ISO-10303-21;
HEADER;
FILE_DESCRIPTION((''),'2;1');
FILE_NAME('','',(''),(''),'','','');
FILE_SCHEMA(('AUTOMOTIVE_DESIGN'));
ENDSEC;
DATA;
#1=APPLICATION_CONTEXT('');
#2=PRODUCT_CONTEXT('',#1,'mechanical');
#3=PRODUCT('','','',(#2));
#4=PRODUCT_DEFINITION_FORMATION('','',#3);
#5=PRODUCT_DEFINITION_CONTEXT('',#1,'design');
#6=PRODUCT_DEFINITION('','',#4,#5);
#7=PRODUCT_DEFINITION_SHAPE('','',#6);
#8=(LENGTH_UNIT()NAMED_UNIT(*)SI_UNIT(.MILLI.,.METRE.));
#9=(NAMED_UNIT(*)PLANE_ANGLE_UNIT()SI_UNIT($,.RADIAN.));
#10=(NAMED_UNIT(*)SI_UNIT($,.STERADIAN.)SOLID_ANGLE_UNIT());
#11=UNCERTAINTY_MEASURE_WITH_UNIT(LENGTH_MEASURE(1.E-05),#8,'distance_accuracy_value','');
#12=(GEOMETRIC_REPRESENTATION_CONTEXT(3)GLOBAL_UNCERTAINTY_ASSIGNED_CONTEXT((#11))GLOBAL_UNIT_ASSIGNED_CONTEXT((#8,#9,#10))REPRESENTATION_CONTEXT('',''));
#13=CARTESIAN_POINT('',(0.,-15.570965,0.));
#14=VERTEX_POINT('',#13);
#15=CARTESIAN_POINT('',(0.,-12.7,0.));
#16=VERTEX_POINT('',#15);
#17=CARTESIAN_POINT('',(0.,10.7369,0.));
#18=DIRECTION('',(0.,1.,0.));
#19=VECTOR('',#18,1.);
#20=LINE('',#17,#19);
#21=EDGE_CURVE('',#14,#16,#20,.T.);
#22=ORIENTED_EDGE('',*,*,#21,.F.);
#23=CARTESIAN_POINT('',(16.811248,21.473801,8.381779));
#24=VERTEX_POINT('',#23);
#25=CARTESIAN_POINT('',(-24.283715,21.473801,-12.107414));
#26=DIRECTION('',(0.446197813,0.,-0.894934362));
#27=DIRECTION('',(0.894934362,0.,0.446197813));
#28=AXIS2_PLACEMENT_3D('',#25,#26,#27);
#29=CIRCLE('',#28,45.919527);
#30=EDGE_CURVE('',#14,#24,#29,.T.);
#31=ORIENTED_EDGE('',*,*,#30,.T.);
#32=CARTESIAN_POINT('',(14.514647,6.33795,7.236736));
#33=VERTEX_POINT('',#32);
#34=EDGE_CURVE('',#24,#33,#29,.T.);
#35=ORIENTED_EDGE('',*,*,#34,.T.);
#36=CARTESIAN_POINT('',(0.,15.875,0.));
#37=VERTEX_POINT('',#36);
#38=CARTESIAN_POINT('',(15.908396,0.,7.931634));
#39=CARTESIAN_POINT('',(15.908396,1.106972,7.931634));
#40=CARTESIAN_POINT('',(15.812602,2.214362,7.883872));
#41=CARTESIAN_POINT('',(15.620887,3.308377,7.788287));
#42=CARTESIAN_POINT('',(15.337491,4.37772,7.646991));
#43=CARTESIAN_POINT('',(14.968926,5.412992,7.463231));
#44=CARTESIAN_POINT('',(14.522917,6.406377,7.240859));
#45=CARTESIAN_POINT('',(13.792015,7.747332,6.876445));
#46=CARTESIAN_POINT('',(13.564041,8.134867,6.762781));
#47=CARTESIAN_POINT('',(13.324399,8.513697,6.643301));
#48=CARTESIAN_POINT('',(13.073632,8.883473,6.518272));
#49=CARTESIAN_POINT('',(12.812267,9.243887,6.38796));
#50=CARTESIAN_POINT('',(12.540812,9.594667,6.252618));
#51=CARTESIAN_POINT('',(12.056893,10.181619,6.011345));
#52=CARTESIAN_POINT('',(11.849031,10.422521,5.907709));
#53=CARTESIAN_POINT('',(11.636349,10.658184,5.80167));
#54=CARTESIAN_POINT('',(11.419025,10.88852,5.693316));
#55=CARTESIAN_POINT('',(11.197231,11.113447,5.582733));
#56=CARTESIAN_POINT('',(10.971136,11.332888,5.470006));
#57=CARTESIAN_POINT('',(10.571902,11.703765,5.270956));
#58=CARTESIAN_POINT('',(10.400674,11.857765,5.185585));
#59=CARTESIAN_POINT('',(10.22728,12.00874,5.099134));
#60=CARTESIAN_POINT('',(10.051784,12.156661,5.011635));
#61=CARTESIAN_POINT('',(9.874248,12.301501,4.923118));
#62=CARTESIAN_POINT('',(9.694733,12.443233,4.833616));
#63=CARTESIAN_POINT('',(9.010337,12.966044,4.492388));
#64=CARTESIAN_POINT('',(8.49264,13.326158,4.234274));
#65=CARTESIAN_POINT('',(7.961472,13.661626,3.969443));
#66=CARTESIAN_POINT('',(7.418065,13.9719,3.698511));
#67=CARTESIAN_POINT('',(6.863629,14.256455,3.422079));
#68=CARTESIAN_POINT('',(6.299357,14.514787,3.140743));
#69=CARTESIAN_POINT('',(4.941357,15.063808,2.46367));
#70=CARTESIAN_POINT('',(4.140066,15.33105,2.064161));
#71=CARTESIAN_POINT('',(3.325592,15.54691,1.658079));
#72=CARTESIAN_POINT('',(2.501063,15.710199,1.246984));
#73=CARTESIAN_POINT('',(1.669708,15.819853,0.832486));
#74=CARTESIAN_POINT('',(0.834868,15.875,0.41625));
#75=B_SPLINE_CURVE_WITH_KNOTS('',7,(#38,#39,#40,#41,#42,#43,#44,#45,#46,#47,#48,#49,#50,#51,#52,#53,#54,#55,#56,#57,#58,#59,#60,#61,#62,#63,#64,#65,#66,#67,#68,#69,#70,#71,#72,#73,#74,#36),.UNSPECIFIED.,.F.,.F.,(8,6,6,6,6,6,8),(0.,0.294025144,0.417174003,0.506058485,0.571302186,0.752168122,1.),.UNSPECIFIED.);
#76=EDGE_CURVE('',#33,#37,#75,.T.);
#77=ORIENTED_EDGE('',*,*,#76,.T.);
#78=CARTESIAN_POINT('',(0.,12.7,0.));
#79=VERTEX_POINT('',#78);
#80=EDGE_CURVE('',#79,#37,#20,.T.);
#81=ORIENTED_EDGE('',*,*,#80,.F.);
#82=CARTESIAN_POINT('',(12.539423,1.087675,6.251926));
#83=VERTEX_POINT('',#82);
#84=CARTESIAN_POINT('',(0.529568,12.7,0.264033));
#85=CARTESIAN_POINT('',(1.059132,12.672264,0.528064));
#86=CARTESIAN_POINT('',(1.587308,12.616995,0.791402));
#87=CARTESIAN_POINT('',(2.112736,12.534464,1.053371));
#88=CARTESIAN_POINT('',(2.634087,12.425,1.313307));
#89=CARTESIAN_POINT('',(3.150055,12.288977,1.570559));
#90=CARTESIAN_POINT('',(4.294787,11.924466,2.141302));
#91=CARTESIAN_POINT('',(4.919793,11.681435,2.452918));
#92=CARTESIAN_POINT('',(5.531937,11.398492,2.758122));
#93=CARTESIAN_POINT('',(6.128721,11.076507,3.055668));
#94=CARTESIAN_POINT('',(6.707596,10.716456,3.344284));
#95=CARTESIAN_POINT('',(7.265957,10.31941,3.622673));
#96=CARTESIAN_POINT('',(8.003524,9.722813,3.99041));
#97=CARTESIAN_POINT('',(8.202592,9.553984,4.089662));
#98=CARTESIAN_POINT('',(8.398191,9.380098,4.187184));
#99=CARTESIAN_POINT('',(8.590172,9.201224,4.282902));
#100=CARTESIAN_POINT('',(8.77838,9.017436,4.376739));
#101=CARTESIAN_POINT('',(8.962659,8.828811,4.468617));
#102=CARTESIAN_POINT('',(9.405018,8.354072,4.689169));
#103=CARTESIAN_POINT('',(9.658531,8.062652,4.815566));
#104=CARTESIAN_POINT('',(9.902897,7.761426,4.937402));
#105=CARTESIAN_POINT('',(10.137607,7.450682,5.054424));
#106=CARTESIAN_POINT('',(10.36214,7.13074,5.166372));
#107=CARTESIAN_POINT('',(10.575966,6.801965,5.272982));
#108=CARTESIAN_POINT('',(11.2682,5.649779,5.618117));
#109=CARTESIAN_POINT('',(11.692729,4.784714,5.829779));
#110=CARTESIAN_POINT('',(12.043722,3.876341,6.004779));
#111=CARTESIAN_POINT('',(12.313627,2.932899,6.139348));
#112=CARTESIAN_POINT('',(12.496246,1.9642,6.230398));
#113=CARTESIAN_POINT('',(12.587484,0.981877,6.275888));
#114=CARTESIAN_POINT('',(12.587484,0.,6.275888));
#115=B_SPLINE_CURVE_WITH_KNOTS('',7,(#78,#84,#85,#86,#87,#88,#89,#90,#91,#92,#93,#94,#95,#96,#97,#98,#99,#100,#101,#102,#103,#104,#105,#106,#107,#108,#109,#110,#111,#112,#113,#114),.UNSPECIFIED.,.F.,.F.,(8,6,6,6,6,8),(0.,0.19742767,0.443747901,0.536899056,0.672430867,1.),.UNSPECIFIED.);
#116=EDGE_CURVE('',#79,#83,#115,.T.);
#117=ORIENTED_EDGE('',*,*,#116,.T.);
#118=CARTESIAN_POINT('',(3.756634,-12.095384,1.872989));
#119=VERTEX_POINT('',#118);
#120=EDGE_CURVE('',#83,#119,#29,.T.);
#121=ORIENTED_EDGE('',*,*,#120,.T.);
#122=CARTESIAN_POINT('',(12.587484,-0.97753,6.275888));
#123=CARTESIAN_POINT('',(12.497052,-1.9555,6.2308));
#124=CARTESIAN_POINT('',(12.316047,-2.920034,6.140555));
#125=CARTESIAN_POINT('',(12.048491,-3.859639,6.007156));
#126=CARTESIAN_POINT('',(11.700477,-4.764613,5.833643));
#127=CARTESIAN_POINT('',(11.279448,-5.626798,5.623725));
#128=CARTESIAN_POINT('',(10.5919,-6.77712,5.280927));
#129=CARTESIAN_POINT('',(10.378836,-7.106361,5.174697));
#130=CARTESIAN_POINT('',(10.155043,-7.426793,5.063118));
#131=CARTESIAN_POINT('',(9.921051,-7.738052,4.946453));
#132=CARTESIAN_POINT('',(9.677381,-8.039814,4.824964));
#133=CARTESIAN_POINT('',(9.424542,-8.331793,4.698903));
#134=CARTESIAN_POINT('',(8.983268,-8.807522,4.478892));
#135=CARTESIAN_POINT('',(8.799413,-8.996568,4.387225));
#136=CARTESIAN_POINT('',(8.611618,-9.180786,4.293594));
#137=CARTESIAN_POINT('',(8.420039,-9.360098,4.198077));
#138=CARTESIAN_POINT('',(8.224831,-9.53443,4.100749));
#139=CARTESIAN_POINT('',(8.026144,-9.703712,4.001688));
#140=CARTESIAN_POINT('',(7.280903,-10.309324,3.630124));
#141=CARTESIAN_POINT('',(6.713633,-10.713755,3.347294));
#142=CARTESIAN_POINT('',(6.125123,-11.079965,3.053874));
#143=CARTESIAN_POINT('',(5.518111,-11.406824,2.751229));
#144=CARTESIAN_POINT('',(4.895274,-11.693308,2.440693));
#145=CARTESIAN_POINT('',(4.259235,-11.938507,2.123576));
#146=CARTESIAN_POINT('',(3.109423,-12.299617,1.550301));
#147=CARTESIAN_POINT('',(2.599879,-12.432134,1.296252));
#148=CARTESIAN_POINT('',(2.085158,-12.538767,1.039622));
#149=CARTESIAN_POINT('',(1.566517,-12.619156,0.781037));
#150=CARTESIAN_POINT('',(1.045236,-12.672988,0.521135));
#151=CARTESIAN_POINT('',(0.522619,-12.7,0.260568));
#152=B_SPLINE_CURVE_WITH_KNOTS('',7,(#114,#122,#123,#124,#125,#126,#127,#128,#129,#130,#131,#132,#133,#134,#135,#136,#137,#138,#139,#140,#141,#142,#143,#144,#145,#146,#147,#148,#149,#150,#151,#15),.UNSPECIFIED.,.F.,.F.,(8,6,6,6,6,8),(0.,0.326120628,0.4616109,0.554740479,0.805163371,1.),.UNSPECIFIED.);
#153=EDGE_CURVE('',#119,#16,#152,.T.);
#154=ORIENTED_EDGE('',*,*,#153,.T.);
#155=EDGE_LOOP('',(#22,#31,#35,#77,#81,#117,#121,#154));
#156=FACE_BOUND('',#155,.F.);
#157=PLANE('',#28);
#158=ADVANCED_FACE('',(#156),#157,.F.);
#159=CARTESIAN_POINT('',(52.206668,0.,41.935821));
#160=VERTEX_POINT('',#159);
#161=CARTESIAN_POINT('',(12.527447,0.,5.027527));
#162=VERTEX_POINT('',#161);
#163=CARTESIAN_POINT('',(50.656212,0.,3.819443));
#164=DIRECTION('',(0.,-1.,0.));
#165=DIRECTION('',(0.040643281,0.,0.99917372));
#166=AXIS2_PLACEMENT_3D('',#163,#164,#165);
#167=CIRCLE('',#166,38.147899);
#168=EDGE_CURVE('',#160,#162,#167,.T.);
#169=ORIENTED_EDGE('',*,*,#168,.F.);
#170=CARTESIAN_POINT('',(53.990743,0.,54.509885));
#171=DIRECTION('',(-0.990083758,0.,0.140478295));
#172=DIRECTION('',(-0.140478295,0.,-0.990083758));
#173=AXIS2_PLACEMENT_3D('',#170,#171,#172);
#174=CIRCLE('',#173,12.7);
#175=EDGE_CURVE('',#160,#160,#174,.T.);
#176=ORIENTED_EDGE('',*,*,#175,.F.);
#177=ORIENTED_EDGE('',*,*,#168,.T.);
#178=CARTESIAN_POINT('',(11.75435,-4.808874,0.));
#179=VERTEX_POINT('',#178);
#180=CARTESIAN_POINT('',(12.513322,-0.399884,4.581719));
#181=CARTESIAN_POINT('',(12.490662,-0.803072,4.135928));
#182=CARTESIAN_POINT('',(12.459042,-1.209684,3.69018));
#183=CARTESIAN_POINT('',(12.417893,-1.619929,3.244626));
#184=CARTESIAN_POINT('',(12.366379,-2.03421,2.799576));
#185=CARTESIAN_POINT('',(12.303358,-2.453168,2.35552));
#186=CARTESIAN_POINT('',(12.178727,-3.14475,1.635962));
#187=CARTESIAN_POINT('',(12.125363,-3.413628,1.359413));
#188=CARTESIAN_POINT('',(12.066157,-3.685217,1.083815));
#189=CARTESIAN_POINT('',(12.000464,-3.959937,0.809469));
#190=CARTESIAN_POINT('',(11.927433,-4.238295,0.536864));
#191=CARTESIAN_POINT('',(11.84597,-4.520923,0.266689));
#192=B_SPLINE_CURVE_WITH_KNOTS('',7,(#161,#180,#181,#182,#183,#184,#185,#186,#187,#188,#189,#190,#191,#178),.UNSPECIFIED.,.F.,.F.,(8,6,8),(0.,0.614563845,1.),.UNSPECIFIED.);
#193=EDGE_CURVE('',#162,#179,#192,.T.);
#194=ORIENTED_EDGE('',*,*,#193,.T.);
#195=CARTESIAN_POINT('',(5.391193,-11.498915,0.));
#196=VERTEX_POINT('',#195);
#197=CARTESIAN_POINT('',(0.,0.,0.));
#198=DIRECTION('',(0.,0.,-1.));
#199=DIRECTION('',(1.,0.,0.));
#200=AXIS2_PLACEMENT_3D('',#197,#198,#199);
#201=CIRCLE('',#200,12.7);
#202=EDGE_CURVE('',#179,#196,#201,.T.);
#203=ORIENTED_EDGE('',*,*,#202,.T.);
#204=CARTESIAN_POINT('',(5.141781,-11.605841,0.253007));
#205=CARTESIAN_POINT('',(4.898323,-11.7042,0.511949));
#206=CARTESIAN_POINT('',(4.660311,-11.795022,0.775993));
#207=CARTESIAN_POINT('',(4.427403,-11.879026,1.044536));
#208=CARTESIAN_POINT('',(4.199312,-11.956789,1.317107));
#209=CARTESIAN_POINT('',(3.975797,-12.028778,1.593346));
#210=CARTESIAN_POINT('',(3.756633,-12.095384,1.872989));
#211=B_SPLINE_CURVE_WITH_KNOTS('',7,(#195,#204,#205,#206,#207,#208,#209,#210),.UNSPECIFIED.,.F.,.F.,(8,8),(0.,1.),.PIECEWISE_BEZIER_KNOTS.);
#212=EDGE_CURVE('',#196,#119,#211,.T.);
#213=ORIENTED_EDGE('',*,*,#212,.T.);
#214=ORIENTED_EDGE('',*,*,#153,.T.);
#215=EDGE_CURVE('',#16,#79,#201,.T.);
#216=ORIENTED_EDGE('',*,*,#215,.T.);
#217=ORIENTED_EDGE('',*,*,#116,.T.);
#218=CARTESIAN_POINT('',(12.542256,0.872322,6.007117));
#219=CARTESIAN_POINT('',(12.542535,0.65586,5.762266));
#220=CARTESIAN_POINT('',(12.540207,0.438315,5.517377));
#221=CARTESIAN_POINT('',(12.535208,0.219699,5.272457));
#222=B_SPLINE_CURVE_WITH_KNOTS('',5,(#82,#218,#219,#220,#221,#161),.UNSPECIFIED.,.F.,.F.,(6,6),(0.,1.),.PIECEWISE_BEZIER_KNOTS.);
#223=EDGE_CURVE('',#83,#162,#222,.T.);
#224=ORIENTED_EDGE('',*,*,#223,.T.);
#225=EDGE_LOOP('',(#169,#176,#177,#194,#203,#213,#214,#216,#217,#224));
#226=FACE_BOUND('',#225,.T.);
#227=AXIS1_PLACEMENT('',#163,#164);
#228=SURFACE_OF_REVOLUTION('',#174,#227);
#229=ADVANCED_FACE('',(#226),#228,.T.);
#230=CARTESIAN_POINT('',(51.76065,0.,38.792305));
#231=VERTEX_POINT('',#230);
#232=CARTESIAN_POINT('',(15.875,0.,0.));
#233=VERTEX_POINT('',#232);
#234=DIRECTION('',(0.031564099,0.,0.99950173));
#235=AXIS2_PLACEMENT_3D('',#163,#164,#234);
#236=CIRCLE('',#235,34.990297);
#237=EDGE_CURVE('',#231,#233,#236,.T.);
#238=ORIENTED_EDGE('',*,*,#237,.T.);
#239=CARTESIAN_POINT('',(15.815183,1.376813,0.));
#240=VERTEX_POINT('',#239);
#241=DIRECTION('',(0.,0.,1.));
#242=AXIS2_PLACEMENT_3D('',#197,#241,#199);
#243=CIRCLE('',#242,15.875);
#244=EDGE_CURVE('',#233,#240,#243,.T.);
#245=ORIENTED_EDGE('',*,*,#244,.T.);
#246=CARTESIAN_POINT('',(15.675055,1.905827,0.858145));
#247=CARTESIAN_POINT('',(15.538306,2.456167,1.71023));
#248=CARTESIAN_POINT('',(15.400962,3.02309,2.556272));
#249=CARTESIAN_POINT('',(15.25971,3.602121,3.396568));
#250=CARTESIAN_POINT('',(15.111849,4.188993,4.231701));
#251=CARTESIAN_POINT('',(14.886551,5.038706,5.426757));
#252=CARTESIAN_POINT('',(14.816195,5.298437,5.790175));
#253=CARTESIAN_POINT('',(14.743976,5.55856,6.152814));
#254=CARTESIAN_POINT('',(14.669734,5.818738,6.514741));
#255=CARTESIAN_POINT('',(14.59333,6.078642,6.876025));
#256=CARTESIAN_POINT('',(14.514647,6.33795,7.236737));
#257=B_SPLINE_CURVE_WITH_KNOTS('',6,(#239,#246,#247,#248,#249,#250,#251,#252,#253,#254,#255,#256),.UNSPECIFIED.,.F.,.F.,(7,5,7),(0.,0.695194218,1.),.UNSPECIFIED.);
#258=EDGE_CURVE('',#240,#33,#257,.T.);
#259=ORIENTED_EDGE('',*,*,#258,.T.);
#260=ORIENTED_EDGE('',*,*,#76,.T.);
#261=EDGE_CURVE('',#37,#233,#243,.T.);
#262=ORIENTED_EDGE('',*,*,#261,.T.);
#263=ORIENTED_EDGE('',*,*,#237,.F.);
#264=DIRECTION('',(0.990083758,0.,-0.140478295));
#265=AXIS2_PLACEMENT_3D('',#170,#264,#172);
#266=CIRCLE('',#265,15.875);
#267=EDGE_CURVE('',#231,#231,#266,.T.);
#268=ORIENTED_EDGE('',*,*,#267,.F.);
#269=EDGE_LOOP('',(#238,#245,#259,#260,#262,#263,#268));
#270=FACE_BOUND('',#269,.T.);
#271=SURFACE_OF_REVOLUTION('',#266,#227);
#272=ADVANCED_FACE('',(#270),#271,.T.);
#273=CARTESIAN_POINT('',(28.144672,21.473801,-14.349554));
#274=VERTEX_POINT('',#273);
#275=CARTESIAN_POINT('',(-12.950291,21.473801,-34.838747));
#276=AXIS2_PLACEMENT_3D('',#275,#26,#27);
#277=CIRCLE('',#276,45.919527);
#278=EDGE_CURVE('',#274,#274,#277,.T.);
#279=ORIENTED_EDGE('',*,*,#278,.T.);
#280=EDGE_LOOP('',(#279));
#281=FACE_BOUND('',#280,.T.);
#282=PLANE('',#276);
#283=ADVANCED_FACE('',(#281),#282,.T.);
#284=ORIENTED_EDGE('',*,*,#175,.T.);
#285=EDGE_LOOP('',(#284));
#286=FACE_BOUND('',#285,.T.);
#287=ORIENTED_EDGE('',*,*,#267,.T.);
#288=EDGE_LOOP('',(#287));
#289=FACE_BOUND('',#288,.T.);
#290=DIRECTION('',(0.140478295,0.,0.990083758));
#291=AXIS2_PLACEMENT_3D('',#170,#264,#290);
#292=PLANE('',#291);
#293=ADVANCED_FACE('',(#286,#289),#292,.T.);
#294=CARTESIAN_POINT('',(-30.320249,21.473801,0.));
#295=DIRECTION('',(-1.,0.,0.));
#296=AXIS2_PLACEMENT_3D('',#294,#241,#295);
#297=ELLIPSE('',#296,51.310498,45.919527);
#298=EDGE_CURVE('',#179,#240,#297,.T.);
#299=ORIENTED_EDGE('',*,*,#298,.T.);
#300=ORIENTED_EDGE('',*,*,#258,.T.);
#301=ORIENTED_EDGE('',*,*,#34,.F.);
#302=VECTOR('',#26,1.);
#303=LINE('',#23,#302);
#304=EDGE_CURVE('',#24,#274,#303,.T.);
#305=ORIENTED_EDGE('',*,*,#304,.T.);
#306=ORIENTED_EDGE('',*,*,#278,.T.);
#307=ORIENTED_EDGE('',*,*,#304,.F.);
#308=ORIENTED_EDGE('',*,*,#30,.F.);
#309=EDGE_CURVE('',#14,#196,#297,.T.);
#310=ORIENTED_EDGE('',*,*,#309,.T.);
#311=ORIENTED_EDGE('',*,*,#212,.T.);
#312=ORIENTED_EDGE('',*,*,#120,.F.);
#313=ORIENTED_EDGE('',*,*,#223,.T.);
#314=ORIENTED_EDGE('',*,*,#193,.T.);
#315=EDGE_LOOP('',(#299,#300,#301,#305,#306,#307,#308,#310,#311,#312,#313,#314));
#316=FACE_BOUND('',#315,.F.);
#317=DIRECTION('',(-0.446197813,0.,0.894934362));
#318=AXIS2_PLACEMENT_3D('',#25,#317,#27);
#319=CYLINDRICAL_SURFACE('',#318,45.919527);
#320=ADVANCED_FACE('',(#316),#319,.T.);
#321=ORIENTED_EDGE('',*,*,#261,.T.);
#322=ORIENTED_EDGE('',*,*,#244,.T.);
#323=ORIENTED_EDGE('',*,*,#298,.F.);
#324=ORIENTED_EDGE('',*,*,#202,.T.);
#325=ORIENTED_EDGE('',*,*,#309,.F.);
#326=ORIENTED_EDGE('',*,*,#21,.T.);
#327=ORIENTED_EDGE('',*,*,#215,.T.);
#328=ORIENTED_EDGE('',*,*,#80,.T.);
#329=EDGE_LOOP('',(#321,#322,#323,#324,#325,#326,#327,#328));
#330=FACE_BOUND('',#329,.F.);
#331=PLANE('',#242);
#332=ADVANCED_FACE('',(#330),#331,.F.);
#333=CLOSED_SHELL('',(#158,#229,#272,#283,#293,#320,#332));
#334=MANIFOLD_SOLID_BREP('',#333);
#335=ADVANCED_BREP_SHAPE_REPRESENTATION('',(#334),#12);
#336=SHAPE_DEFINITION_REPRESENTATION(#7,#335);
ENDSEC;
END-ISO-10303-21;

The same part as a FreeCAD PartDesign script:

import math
import FreeCAD as App
import Part
import Sketcher
Q = App.Units.Quantity

doc = App.newDocument("Part")
body = doc.addObject("PartDesign::Body", "Body")

# Sketch on XY plane
sketch1 = body.newObject("Sketcher::SketchObject", "Sketch")
sketch1.AttachmentSupport = (doc.getObject("XY_Plane"), [""])
sketch1.MapMode = "FlatFace"
sketch1.addGeometry(Part.Circle(App.Vector(0, 0, 0), App.Vector(0, 0, 1), 16), False)
sketch1.addGeometry(Part.Circle(App.Vector(0, 0, 0), App.Vector(0, 0, 1), 13), False)
sketch1.addConstraint(Sketcher.Constraint("Coincident", 0, 3, -1, 1))
sketch1.addConstraint(Sketcher.Constraint("Coincident", 1, 3, -1, 1))
sketch1.addConstraint(Sketcher.Constraint("Diameter", 1, Q("1 in")))
sketch1.addConstraint(Sketcher.Constraint("Diameter", 0, Q("1.25 in")))

# Sketch on XZ plane
sketch2 = body.newObject("Sketcher::SketchObject", "Sketch001")
sketch2.AttachmentSupport = (doc.getObject("XZ_Plane"), [""])
sketch2.MapMode = "FlatFace"
sketch2.addGeometry(Part.ArcOfCircle(Part.Circle(App.Vector(51, 4, 0), App.Vector(0, 0, 1), 51), math.radians(86), math.radians(184)), False)
sketch2.addConstraint(Sketcher.Constraint("Coincident", 0, 2, -1, 1))
sketch2.addConstraint(Sketcher.Constraint("Radius", 0, Q("2 in")))
sketch2.addConstraint(Sketcher.Constraint("DistanceX", 0, 3, 0, 1, Q("3.33453 mm")))
sketch2.addConstraint(Sketcher.Constraint("DistanceX", -1, 1, 0, 3, Q("50.656212 mm")))
doc.recompute()

additivepipe = body.newObject("PartDesign::AdditivePipe", "AdditivePipe")
additivepipe.Profile = sketch1
additivepipe.Spine = (sketch2, ["Edge1"])

# Sketch on an angled plane
sketch3 = body.newObject("Sketcher::SketchObject", "Sketch002")
sketch3.Placement = App.Placement(App.Vector(0, 0, 0), App.Rotation(App.Vector(0.894934362, 0, 0.446197813), App.Vector(0, -1.000000001, 0), App.Vector(0.446197813, 0, -0.894934362), "ZXY"))
sketch3.addGeometry(Part.Circle(App.Vector(-27, -21, 0), App.Vector(0, 0, 1), 46), False)
sketch3.addConstraint(Sketcher.Constraint("Diameter", 0, Q("91.839055 mm")))
sketch3.addConstraint(Sketcher.Constraint("DistanceY", 0, 3, -1, 1, Q("21.473801 mm")))
sketch3.addConstraint(Sketcher.Constraint("DistanceX", 0, 3, -1, 1, Q("27.134633 mm")))
pad1 = body.newObject("PartDesign::Pad", "Pad")
pad1.Profile = sketch3
pad1.Length = Q("1 in")

doc.recompute()
